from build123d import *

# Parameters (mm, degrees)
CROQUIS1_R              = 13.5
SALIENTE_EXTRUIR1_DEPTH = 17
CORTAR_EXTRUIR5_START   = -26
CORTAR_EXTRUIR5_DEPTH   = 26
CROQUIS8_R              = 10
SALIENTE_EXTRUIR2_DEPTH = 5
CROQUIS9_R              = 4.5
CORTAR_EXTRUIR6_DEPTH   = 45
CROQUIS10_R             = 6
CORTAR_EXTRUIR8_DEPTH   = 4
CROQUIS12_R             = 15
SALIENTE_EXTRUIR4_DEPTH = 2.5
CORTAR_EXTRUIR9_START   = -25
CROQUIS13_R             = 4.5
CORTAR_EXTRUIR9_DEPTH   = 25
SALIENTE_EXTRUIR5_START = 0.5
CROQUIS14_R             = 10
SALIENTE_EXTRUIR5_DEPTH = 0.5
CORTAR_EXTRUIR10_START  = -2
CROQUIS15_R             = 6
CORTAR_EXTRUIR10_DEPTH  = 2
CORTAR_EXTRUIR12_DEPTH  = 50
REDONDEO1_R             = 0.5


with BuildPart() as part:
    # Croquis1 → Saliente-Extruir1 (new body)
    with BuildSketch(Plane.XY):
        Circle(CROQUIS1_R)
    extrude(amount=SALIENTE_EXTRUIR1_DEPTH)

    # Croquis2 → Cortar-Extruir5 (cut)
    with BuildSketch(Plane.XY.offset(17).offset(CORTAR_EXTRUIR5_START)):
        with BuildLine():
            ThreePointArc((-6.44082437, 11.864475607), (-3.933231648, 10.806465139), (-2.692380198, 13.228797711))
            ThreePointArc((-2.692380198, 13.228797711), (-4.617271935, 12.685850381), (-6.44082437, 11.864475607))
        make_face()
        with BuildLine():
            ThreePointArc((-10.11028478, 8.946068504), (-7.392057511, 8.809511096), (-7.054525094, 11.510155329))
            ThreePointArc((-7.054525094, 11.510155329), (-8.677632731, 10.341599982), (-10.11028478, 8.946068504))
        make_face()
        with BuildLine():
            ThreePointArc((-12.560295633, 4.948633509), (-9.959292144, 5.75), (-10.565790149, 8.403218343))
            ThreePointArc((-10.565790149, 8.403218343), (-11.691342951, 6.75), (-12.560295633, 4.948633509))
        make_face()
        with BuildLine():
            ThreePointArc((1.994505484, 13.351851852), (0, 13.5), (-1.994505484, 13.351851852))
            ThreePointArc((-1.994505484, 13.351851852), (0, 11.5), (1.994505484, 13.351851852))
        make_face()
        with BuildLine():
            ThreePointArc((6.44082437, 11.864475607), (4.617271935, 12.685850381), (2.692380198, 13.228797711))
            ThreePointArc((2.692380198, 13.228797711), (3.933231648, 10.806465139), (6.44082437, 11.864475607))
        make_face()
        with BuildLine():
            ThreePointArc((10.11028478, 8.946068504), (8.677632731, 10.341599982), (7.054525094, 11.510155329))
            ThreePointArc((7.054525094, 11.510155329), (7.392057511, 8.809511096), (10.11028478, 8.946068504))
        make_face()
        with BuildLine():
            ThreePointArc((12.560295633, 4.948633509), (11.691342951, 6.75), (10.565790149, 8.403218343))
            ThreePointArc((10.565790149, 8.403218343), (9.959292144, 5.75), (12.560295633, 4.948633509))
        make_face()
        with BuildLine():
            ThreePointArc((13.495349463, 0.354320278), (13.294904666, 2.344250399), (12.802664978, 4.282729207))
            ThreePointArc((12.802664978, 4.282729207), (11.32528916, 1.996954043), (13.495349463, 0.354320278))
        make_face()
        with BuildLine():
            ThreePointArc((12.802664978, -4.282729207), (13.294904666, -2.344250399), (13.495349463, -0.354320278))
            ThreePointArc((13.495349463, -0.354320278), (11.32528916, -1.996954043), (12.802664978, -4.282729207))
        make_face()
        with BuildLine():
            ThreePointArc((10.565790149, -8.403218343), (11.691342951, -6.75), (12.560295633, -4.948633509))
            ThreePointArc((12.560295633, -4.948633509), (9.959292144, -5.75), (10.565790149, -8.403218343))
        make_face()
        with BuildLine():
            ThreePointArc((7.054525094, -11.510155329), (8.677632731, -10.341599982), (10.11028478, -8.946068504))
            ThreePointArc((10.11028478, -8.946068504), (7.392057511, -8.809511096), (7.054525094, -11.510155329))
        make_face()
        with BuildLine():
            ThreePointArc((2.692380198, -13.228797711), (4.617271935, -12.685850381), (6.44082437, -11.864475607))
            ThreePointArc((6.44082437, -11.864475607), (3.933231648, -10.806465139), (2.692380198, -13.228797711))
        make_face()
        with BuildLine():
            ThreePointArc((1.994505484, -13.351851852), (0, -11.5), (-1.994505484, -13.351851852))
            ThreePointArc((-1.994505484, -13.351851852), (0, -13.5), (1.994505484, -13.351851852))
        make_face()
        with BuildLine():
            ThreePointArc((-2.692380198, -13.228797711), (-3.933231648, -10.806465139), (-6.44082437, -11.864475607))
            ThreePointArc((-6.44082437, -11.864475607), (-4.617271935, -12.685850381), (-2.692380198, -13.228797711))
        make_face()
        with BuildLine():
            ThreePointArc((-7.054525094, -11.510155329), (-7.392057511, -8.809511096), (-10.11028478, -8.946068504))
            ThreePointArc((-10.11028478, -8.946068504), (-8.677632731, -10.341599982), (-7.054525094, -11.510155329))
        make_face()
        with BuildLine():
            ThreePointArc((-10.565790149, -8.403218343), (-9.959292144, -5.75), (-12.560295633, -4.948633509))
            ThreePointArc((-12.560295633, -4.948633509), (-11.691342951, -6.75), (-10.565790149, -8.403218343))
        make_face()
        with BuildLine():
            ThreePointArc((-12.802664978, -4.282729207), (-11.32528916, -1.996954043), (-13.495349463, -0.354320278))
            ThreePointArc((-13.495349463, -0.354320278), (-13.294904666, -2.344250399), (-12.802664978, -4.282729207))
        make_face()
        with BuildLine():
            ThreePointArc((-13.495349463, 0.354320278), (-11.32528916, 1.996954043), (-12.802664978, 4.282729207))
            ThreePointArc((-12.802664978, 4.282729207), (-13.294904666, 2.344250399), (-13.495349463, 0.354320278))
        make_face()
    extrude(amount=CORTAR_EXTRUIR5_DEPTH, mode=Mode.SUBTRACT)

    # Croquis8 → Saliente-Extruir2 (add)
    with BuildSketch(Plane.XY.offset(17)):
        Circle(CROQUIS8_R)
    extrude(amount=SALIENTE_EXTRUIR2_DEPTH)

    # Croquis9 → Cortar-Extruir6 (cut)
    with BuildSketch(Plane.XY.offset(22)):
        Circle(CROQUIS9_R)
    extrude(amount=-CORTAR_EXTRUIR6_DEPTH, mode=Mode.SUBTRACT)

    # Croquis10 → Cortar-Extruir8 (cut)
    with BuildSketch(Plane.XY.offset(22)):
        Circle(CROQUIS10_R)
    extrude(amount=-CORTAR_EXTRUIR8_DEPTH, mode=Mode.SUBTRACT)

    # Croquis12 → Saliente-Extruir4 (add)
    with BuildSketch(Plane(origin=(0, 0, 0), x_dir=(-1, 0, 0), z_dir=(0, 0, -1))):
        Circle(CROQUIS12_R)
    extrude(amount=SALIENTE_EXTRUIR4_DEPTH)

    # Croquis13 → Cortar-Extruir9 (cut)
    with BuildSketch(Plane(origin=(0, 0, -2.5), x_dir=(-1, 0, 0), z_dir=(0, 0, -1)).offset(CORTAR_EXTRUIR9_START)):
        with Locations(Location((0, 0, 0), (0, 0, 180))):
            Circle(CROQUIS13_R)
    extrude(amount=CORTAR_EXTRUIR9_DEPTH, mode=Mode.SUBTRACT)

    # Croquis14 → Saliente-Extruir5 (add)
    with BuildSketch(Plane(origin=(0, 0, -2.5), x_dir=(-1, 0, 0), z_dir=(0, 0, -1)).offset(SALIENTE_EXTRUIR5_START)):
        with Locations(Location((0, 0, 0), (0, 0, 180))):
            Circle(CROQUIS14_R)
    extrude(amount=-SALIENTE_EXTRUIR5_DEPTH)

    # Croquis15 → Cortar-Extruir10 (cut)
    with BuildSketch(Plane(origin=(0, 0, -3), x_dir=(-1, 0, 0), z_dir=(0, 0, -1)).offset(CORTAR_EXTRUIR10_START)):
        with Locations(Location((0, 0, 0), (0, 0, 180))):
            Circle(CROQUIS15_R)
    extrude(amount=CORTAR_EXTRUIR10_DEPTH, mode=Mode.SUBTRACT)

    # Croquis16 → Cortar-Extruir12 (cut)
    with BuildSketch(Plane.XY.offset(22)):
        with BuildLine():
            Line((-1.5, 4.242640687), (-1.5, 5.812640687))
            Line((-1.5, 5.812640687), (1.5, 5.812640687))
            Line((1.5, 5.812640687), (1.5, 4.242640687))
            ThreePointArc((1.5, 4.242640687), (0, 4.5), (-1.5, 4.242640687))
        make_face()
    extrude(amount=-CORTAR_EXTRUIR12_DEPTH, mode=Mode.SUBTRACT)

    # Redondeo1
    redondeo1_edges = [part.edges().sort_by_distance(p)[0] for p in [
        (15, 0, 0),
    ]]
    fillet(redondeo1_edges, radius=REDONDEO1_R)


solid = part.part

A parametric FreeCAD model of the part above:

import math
import FreeCAD as App
import Part
import Sketcher

V = App.Vector


def edges_at(feature, points):
    """Names of the edges that pass closest to the given points."""
    edges = feature.Shape.Edges
    near = lambda p: min(range(len(edges)), key=lambda i: edges[i].distToShape(Part.Vertex(*p))[0])
    return sorted({f"Edge{near(p) + 1}" for p in points})

doc = App.newDocument("Part")
body = doc.addObject("PartDesign::Body", "Body")

sketch1 = body.newObject("Sketcher::SketchObject", "Sketch")
sketch1.AttachmentSupport = (doc.getObject("XY_Plane"), [""])
sketch1.MapMode = "FlatFace"
sketch1.addGeometry(Part.Circle(V(0, 0, 0), V(0, 0, 1), 13.5), False)
sketch1.addConstraint([
    Sketcher.Constraint("Coincident", 0, 3, -1, 1),
    Sketcher.Constraint("Diameter", 0, 27.0),
])
pad1 = body.newObject("PartDesign::Pad", "Pad")
pad1.Profile = sketch1
pad1.Length = 17

sketch2 = body.newObject("Sketcher::SketchObject", "Sketch001")
sketch2.AttachmentSupport = (doc.getObject("XY_Plane"), [""])
sketch2.MapMode = "FlatFace"
sketch2.AttachmentOffset = App.Placement(V(0, 0, -9), App.Rotation())
sketch2.addGeometry([
    Part.ArcOfCircle(Part.Circle(V(-4.617272, 12.68585, 0), V(0, 0, 1), 2), math.radians(-155.751977), math.radians(15.751977)),
    Part.ArcOfCircle(Part.Circle(V(0, 0, 0), V(0, 0, 1), 13.5), math.radians(101.503955), math.radians(118.496045)),
    Part.ArcOfCircle(Part.Circle(V(-8.677633, 10.3416, 0), V(0, 0, 1), 2), math.radians(-135.751977), math.radians(35.751977)),
    Part.ArcOfCircle(Part.Circle(V(0, 0, 0), V(0, 0, 1), 13.5), math.radians(121.503955), math.radians(138.496045)),
    Part.ArcOfCircle(Part.Circle(V(-11.691343, 6.75, 0), V(0, 0, 1), 2), math.radians(-115.751977), math.radians(55.751977)),
    Part.ArcOfCircle(Part.Circle(V(0, 0, 0), V(0, 0, 1), 13.5), math.radians(141.503955), math.radians(158.496045)),
    Part.ArcOfCircle(Part.Circle(V(0, 0, 0), V(0, 0, 1), 13.5), math.radians(81.503955), math.radians(98.496045)),
    Part.ArcOfCircle(Part.Circle(V(0, 13.5, 0), V(0, 0, 1), 2), math.radians(-175.751977), math.radians(-4.248023)),
    Part.ArcOfCircle(Part.Circle(V(0, 0, 0), V(0, 0, 1), 13.5), math.radians(61.503955), math.radians(78.496045)),
    Part.ArcOfCircle(Part.Circle(V(4.617272, 12.68585, 0), V(0, 0, 1), 2), math.radians(164.248023), math.radians(335.751977)),
    Part.ArcOfCircle(Part.Circle(V(0, 0, 0), V(0, 0, 1), 13.5), math.radians(41.503955), math.radians(58.496045)),
    Part.ArcOfCircle(Part.Circle(V(8.677633, 10.3416, 0), V(0, 0, 1), 2), math.radians(144.248023), math.radians(315.751977)),
    Part.ArcOfCircle(Part.Circle(V(0, 0, 0), V(0, 0, 1), 13.5), math.radians(21.503955), math.radians(38.496045)),
    Part.ArcOfCircle(Part.Circle(V(11.691343, 6.75, 0), V(0, 0, 1), 2), math.radians(124.248023), math.radians(295.751977)),
    Part.ArcOfCircle(Part.Circle(V(0, 0, 0), V(0, 0, 1), 13.5), math.radians(1.503955), math.radians(18.496045)),
    Part.ArcOfCircle(Part.Circle(V(13.294905, 2.34425, 0), V(0, 0, 1), 2), math.radians(104.248023), math.radians(275.751977)),
    Part.ArcOfCircle(Part.Circle(V(0, 0, 0), V(0, 0, 1), 13.5), math.radians(-18.496045), math.radians(-1.503955)),
    Part.ArcOfCircle(Part.Circle(V(13.294905, -2.34425, 0), V(0, 0, 1), 2), math.radians(84.248023), math.radians(255.751977)),
    Part.ArcOfCircle(Part.Circle(V(0, 0, 0), V(0, 0, 1), 13.5), math.radians(-38.496045), math.radians(-21.503955)),
    Part.ArcOfCircle(Part.Circle(V(11.691343, -6.75, 0), V(0, 0, 1), 2), math.radians(64.248023), math.radians(235.751977)),
    Part.ArcOfCircle(Part.Circle(V(0, 0, 0), V(0, 0, 1), 13.5), math.radians(-58.496045), math.radians(-41.503955)),
    Part.ArcOfCircle(Part.Circle(V(8.677633, -10.3416, 0), V(0, 0, 1), 2), math.radians(44.248023), math.radians(215.751977)),
    Part.ArcOfCircle(Part.Circle(V(0, 0, 0), V(0, 0, 1), 13.5), math.radians(-78.496045), math.radians(-61.503955)),
    Part.ArcOfCircle(Part.Circle(V(4.617272, -12.68585, 0), V(0, 0, 1), 2), math.radians(24.248023), math.radians(195.751977)),
    Part.ArcOfCircle(Part.Circle(V(0, -13.5, 0), V(0, 0, 1), 2), math.radians(4.248023), math.radians(175.751977)),
    Part.ArcOfCircle(Part.Circle(V(0, 0, 0), V(0, 0, 1), 13.5), math.radians(-98.496045), math.radians(-81.503955)),
    Part.ArcOfCircle(Part.Circle(V(-4.617272, -12.68585, 0), V(0, 0, 1), 2), math.radians(-15.751977), math.radians(155.751977)),
    Part.ArcOfCircle(Part.Circle(V(0, 0, 0), V(0, 0, 1), 13.5), math.radians(-118.496045), math.radians(-101.503955)),
    Part.ArcOfCircle(Part.Circle(V(-8.677633, -10.3416, 0), V(0, 0, 1), 2), math.radians(-35.751977), math.radians(135.751977)),
    Part.ArcOfCircle(Part.Circle(V(0, 0, 0), V(0, 0, 1), 13.5), math.radians(-138.496045), math.radians(-121.503955)),
    Part.ArcOfCircle(Part.Circle(V(-11.691343, -6.75, 0), V(0, 0, 1), 2), math.radians(-55.751977), math.radians(115.751977)),
    Part.ArcOfCircle(Part.Circle(V(0, 0, 0), V(0, 0, 1), 13.5), math.radians(-158.496045), math.radians(-141.503955)),
    Part.ArcOfCircle(Part.Circle(V(-13.294905, -2.34425, 0), V(0, 0, 1), 2), math.radians(-75.751977), math.radians(95.751977)),
    Part.ArcOfCircle(Part.Circle(V(0, 0, 0), V(0, 0, 1), 13.5), math.radians(-178.496045), math.radians(-161.503955)),
    Part.ArcOfCircle(Part.Circle(V(-13.294905, 2.34425, 0), V(0, 0, 1), 2), math.radians(-95.751977), math.radians(75.751977)),
    Part.ArcOfCircle(Part.Circle(V(0, 0, 0), V(0, 0, 1), 13.5), math.radians(161.503955), math.radians(178.496045)),
], False)
sketch2.addConstraint([
    Sketcher.Constraint("Coincident", 0, 1, 1, 2),
    Sketcher.Constraint("Coincident", 1, 1, 0, 2),
    Sketcher.Constraint("Coincident", 2, 1, 3, 2),
    Sketcher.Constraint("Coincident", 3, 1, 2, 2),
    Sketcher.Constraint("Coincident", 4, 1, 5, 2),
    Sketcher.Constraint("Coincident", 5, 1, 4, 2),
    Sketcher.Constraint("Coincident", 6, 1, 7, 2),
    Sketcher.Constraint("Coincident", 7, 1, 6, 2),
    Sketcher.Constraint("Coincident", 8, 1, 9, 2),
    Sketcher.Constraint("Coincident", 9, 1, 8, 2),
    Sketcher.Constraint("Coincident", 10, 1, 11, 2),
    Sketcher.Constraint("Coincident", 11, 1, 10, 2),
    Sketcher.Constraint("Coincident", 12, 1, 13, 2),
    Sketcher.Constraint("Coincident", 13, 1, 12, 2),
    Sketcher.Constraint("Coincident", 14, 1, 15, 2),
    Sketcher.Constraint("Coincident", 15, 1, 14, 2),
    Sketcher.Constraint("Coincident", 16, 1, 17, 2),
    Sketcher.Constraint("Coincident", 17, 1, 16, 2),
    Sketcher.Constraint("Coincident", 18, 1, 19, 2),
    Sketcher.Constraint("Coincident", 19, 1, 18, 2),
    Sketcher.Constraint("Coincident", 20, 1, 21, 2),
    Sketcher.Constraint("Coincident", 21, 1, 20, 2),
    Sketcher.Constraint("Coincident", 22, 1, 23, 2),
    Sketcher.Constraint("Coincident", 23, 1, 22, 2),
    Sketcher.Constraint("Coincident", 24, 1, 25, 2),
    Sketcher.Constraint("Coincident", 25, 1, 24, 2),
    Sketcher.Constraint("Coincident", 26, 1, 27, 2),
    Sketcher.Constraint("Coincident", 27, 1, 26, 2),
    Sketcher.Constraint("Coincident", 28, 1, 29, 2),
    Sketcher.Constraint("Coincident", 29, 1, 28, 2),
    Sketcher.Constraint("Coincident", 30, 1, 31, 2),
    Sketcher.Constraint("Coincident", 31, 1, 30, 2),
    Sketcher.Constraint("Coincident", 32, 1, 33, 2),
    Sketcher.Constraint("Coincident", 33, 1, 32, 2),
    Sketcher.Constraint("Coincident", 34, 1, 35, 2),
    Sketcher.Constraint("Coincident", 35, 1, 34, 2),
    Sketcher.Constraint("Coincident", 1, 3, -1, 1),
    Sketcher.Constraint("Coincident", 3, 3, -1, 1),
    Sketcher.Constraint("Coincident", 5, 3, -1, 1),
    Sketcher.Constraint("Coincident", 6, 3, -1, 1),
    Sketcher.Constraint("Coincident", 8, 3, -1, 1),
    Sketcher.Constraint("Coincident", 10, 3, -1, 1),
    Sketcher.Constraint("Coincident", 12, 3, -1, 1),
    Sketcher.Constraint("Coincident", 14, 3, -1, 1),
    Sketcher.Constraint("Coincident", 16, 3, -1, 1),
    Sketcher.Constraint("Coincident", 18, 3, -1, 1),
    Sketcher.Constraint("Coincident", 20, 3, -1, 1),
    Sketcher.Constraint("Coincident", 22, 3, -1, 1),
    Sketcher.Constraint("Coincident", 25, 3, -1, 1),
    Sketcher.Constraint("Coincident", 27, 3, -1, 1),
    Sketcher.Constraint("Coincident", 29, 3, -1, 1),
    Sketcher.Constraint("Coincident", 31, 3, -1, 1),
    Sketcher.Constraint("Coincident", 33, 3, -1, 1),
    Sketcher.Constraint("Coincident", 35, 3, -1, 1),
    Sketcher.Constraint("Equal", 0, 2),
    Sketcher.Constraint("Equal", 1, 3),
    Sketcher.Constraint("Equal", 2, 4),
    Sketcher.Constraint("Equal", 3, 5),
    Sketcher.Constraint("Equal", 5, 6),
    Sketcher.Constraint("Equal", 4, 7),
    Sketcher.Constraint("Equal", 6, 8),
    Sketcher.Constraint("Equal", 7, 9),
    Sketcher.Constraint("Equal", 8, 10),
    Sketcher.Constraint("Equal", 9, 11),
    Sketcher.Constraint("Equal", 10, 12),
    Sketcher.Constraint("Equal", 11, 13),
    Sketcher.Constraint("Equal", 12, 14),
    Sketcher.Constraint("Equal", 13, 15),
    Sketcher.Constraint("Equal", 14, 16),
    Sketcher.Constraint("Equal", 15, 17),
    Sketcher.Constraint("Equal", 16, 18),
    Sketcher.Constraint("Equal", 17, 19),
    Sketcher.Constraint("Equal", 18, 20),
    Sketcher.Constraint("Equal", 19, 21),
    Sketcher.Constraint("Equal", 20, 22),
    Sketcher.Constraint("Equal", 21, 23),
    Sketcher.Constraint("Equal", 23, 24),
    Sketcher.Constraint("Equal", 22, 25),
    Sketcher.Constraint("Equal", 24, 26),
    Sketcher.Constraint("Equal", 25, 27),
    Sketcher.Constraint("Equal", 26, 28),
    Sketcher.Constraint("Equal", 27, 29),
    Sketcher.Constraint("Equal", 28, 30),
    Sketcher.Constraint("Equal", 29, 31),
    Sketcher.Constraint("Equal", 30, 32),
    Sketcher.Constraint("Equal", 31, 33),
    Sketcher.Constraint("Equal", 32, 34),
    Sketcher.Constraint("Equal", 33, 35),
    Sketcher.Constraint("Symmetric", 4, 3, 19, 3, -1, 1),
    Sketcher.Constraint("Symmetric", 2, 3, 21, 3, -1, 1),
    Sketcher.Constraint("Symmetric", 0, 3, 23, 3, -1, 1),
    Sketcher.Constraint("Symmetric", 7, 3, 24, 3, -1, 1),
    Sketcher.Constraint("Symmetric", 9, 3, 26, 3, -1, 1),
    Sketcher.Constraint("Symmetric", 11, 3, 28, 3, -1, 1),
    Sketcher.Constraint("Symmetric", 13, 3, 30, 3, -1, 1),
    Sketcher.Constraint("Symmetric", 15, 3, 32, 3, -1, 1),
    Sketcher.Constraint("Symmetric", 17, 3, 34, 3, -1, 1),
    Sketcher.Constraint("Symmetric", 0, 3, 9, 3, -2),
    Sketcher.Constraint("Symmetric", 2, 3, 11, 3, -2),
    Sketcher.Constraint("Symmetric", 4, 3, 13, 3, -2),
    Sketcher.Constraint("Symmetric", 17, 3, 32, 3, -2),
    Sketcher.Constraint("PointOnObject", 7, 3, -2),
    Sketcher.Constraint("Radius", 0, 2.0),
    Sketcher.Constraint("Radius", 1, 13.5),
    Sketcher.Constraint("DistanceY", -1, 1, 7, 3, 13.5),
    Sketcher.Constraint("DistanceY", -1, 1, 4, 3, 6.75),
    Sketcher.Constraint("DistanceY", -1, 1, 2, 3, 10.3416),
    Sketcher.Constraint("DistanceX", 0, 3, -1, 1, 4.617272),
    Sketcher.Constraint("DistanceY", -1, 1, 0, 3, 12.68585),
    Sketcher.Constraint("DistanceY", -1, 1, 15, 3, 2.34425),
    Sketcher.Constraint("DistanceY", -1, 1, 2, 1, 8.946069),
    Sketcher.Constraint("DistanceX", 5, 1, -1, 1, 10.56579),
    Sketcher.Constraint("DistanceY", -1, 1, 14, 1, 0.35432),
])
pocket1 = body.newObject("PartDesign::Pocket", "Pocket")
pocket1.Profile = sketch2
pocket1.Length = 26
pocket1.Reversed = True

sketch3 = body.newObject("Sketcher::SketchObject", "Sketch002")
sketch3.AttachmentSupport = (doc.getObject("XY_Plane"), [""])
sketch3.MapMode = "FlatFace"
sketch3.AttachmentOffset = App.Placement(V(0, 0, 17), App.Rotation())
sketch3.addGeometry(Part.Circle(V(0, 0, 0), V(0, 0, 1), 10), False)
sketch3.addConstraint([
    Sketcher.Constraint("Coincident", 0, 3, -1, 1),
    Sketcher.Constraint("Diameter", 0, 20.0),
])
pad2 = body.newObject("PartDesign::Pad", "Pad001")
pad2.Profile = sketch3
pad2.Length = 5

sketch4 = body.newObject("Sketcher::SketchObject", "Sketch003")
sketch4.AttachmentSupport = (doc.getObject("XY_Plane"), [""])
sketch4.MapMode = "FlatFace"
sketch4.AttachmentOffset = App.Placement(V(0, 0, 22), App.Rotation())
sketch4.addGeometry(Part.Circle(V(0, 0, 0), V(0, 0, 1), 4.5), False)
sketch4.addConstraint([
    Sketcher.Constraint("Coincident", 0, 3, -1, 1),
    Sketcher.Constraint("Diameter", 0, 9.0),
])
pocket2 = body.newObject("PartDesign::Pocket", "Pocket001")
pocket2.Profile = sketch4
pocket2.Length = 45

sketch5 = body.newObject("Sketcher::SketchObject", "Sketch004")
sketch5.AttachmentSupport = (doc.getObject("XY_Plane"), [""])
sketch5.MapMode = "FlatFace"
sketch5.AttachmentOffset = App.Placement(V(0, 0, 22), App.Rotation())
sketch5.addGeometry(Part.Circle(V(0, 0, 0), V(0, 0, 1), 6), False)
sketch5.addConstraint([
    Sketcher.Constraint("Coincident", 0, 3, -1, 1),
    Sketcher.Constraint("Diameter", 0, 12.0),
])
pocket3 = body.newObject("PartDesign::Pocket", "Pocket002")
pocket3.Profile = sketch5
pocket3.Length = 4

sketch6 = body.newObject("Sketcher::SketchObject", "Sketch005")
sketch6.AttachmentSupport = (doc.getObject("XY_Plane"), [""])
sketch6.MapMode = "FlatFace"
sketch6.addGeometry(Part.Circle(V(0, 0, 0), V(0, 0, 1), 15), False)
sketch6.addConstraint([
    Sketcher.Constraint("Coincident", 0, 3, -1, 1),
    Sketcher.Constraint("Diameter", 0, 30.0),
])
pad3 = body.newObject("PartDesign::Pad", "Pad002")
pad3.Profile = sketch6
pad3.Length = 2.5
pad3.Reversed = True

sketch7 = body.newObject("Sketcher::SketchObject", "Sketch006")
sketch7.AttachmentSupport = (doc.getObject("XY_Plane"), [""])
sketch7.MapMode = "FlatFace"
sketch7.AttachmentOffset = App.Placement(V(0, 0, 22.5), App.Rotation())
sketch7.addGeometry(Part.Circle(V(0, 0, 0), V(0, 0, 1), 4.5), False)
sketch7.addConstraint([
    Sketcher.Constraint("Coincident", 0, 3, -1, 1),
    Sketcher.Constraint("Diameter", 0, 9.0),
])
pocket4 = body.newObject("PartDesign::Pocket", "Pocket003")
pocket4.Profile = sketch7
pocket4.Length = 25

sketch8 = body.newObject("Sketcher::SketchObject", "Sketch007")
sketch8.AttachmentSupport = (doc.getObject("XY_Plane"), [""])
sketch8.MapMode = "FlatFace"
sketch8.AttachmentOffset = App.Placement(V(0, 0, -3), App.Rotation())
sketch8.addGeometry(Part.Circle(V(0, 0, 0), V(0, 0, 1), 10), False)
sketch8.addConstraint([
    Sketcher.Constraint("Coincident", 0, 3, -1, 1),
    Sketcher.Constraint("Diameter", 0, 20.0),
])
pad4 = body.newObject("PartDesign::Pad", "Pad003")
pad4.Profile = sketch8
pad4.Length = 0.5

sketch9 = body.newObject("Sketcher::SketchObject", "Sketch008")
sketch9.AttachmentSupport = (doc.getObject("XY_Plane"), [""])
sketch9.MapMode = "FlatFace"
sketch9.AttachmentOffset = App.Placement(V(0, 0, -1), App.Rotation())
sketch9.addGeometry(Part.Circle(V(0, 0, 0), V(0, 0, 1), 6), False)
sketch9.addConstraint([
    Sketcher.Constraint("Coincident", 0, 3, -1, 1),
    Sketcher.Constraint("Diameter", 0, 12.0),
])
pocket5 = body.newObject("PartDesign::Pocket", "Pocket004")
pocket5.Profile = sketch9
pocket5.Length = 2

sketch10 = body.newObject("Sketcher::SketchObject", "Sketch009")
sketch10.AttachmentSupport = (doc.getObject("XY_Plane"), [""])
sketch10.MapMode = "FlatFace"
sketch10.AttachmentOffset = App.Placement(V(0, 0, 22), App.Rotation())
sketch10.addGeometry([
    Part.LineSegment(V(-1.5, 5.812641, 0), V(-1.5, 4.242641, 0)),
    Part.ArcOfCircle(Part.Circle(V(0, 0, 0), V(0, 0, 1), 4.5), math.radians(70.528779), math.radians(109.471221)),
    Part.LineSegment(V(1.5, 4.242641, 0), V(1.5, 5.812641, 0)),
    Part.LineSegment(V(1.5, 5.812641, 0), V(-1.5, 5.812641, 0)),
], False)
sketch10.addConstraint([
    Sketcher.Constraint("Coincident", 0, 2, 1, 2),
    Sketcher.Constraint("Coincident", 1, 1, 2, 1),
    Sketcher.Constraint("Coincident", 2, 2, 3, 1),
    Sketcher.Constraint("Coincident", 3, 2, 0, 1),
    Sketcher.Constraint("Vertical", 0),
    Sketcher.Constraint("Vertical", 2),
    Sketcher.Constraint("Horizontal", 3),
    Sketcher.Constraint("Coincident", 1, 3, -1, 1),
    Sketcher.Constraint("Horizontal", 0, 2, 1, 1),
    Sketcher.Constraint("Radius", 1, 4.5),
    Sketcher.Constraint("DistanceX", 3, 2, 3, 1, 3.0),
    Sketcher.Constraint("DistanceY", 0, 2, 0, 1, 1.57),
])
pocket6 = body.newObject("PartDesign::Pocket", "Pocket005")
pocket6.Profile = sketch10
pocket6.Length = 50
doc.recompute()

fillet = body.newObject("PartDesign::Fillet", "Fillet")
fillet.Base = (pocket6, edges_at(pocket6, [(15, 0, 0)]))
fillet.Radius = 0.5

doc.recompute()
